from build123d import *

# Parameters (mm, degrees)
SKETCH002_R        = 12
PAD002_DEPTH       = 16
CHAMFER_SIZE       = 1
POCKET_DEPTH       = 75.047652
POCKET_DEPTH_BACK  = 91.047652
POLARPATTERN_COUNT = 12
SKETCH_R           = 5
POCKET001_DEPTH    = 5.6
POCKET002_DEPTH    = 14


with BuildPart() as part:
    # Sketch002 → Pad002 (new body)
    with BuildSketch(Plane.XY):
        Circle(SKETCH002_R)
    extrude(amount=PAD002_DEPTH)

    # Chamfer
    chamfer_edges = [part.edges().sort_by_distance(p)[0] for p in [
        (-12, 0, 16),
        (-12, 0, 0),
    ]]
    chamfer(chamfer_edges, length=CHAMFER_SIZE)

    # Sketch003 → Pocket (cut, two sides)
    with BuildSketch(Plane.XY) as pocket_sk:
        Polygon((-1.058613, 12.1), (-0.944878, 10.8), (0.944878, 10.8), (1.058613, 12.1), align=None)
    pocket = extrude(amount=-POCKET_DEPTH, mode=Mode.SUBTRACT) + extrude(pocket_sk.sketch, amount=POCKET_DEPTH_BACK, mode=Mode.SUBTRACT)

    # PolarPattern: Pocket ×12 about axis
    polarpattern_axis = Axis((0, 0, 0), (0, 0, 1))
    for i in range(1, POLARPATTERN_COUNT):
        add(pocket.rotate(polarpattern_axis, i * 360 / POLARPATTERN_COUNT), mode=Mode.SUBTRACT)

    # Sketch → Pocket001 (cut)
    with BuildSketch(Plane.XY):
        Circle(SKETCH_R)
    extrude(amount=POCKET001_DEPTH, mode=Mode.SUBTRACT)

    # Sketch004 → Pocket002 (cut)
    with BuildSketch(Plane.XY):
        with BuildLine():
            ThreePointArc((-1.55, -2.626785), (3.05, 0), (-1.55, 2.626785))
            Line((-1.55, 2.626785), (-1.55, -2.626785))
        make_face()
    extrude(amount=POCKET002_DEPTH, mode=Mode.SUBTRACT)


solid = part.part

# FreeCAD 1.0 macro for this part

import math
import FreeCAD as App
import Part
import Sketcher
Q = App.Units.Quantity


def edges_at(feature, points):
    """Names of the edges that pass closest to the given points."""
    edges = feature.Shape.Edges
    near = lambda p: min(range(len(edges)), key=lambda i: edges[i].distToShape(Part.Vertex(*p))[0])
    return sorted({f"Edge{near(p) + 1}" for p in points})


def add_polygon(sketch, points):
    """Adds a closed chain of lines whose ends are joined by coincident constraints."""
    first, n = sketch.GeometryCount, len(points)
    for a, b in zip(points, points[1:] + points[:1]):
        sketch.addGeometry(Part.LineSegment(App.Vector(*a, 0), App.Vector(*b, 0)), False)
    for i in range(n):
        sketch.addConstraint(Sketcher.Constraint("Coincident", first + i, 2, first + (i + 1) % n, 1))

doc = App.newDocument("Part")
body = doc.addObject("PartDesign::Body", "Body")

sketch1 = doc.addObject("Sketcher::SketchObject", "Sketch")
body.addObject(sketch1)
sketch1.AttachmentSupport = (doc.XY_Plane, [""])
sketch1.MapMode = "FlatFace"
sketch1.addGeometry(Part.Circle(App.Vector(0, 0, 0), App.Vector(0, 0, 1), 12), False)
sketch1.addConstraint(Sketcher.Constraint("Coincident", 0, 3, -1, 1))
sketch1.addConstraint(Sketcher.Constraint("Diameter", 0, Q("24 mm")))
pad1 = doc.addObject("PartDesign::Pad", "Pad")
body.addObject(pad1)
pad1.Profile = sketch1
pad1.Length = 16
doc.recompute()

chamfer = doc.addObject("PartDesign::Chamfer", "Chamfer")
body.addObject(chamfer)
chamfer.Base = (pad1, edges_at(pad1, [(-12, 0, 16), (-12, 0, 0)]))
chamfer.Size = 1

sketch2 = doc.addObject("Sketcher::SketchObject", "Sketch001")
body.addObject(sketch2)
sketch2.AttachmentSupport = (doc.XY_Plane, [""])
sketch2.MapMode = "FlatFace"
add_polygon(sketch2, [(-1.058613, 12.1), (-0.944878, 10.8), (0.944878, 10.8), (1.058613, 12.1)])
sketch2.addConstraint(Sketcher.Constraint("Horizontal", 1))
sketch2.addConstraint(Sketcher.Constraint("Horizontal", 3))
sketch2.addConstraint(Sketcher.Constraint("Equal", 0, 2))
sketch2.addConstraint(Sketcher.Constraint("Angle", 0, Q("-85.000011 deg")))
sketch2.addConstraint(Sketcher.Constraint("DistanceY", -1, 1, 0, 2, Q("10.8 mm")))
sketch2.addConstraint(Sketcher.Constraint("DistanceY", -1, 1, 2, 2, Q("12.1 mm")))
sketch2.addConstraint(Sketcher.Constraint("DistanceX", 1, 1, 1, 2, Q("1.889756 mm")))
sketch2.addConstraint(Sketcher.Constraint("DistanceX", 0, 2, -1, 1, Q("0.944878 mm")))
pocket1 = doc.addObject("PartDesign::Pocket", "Pocket")
body.addObject(pocket1)
pocket1.Profile = sketch2
pocket1.Type = "ThroughAll"
pocket1.Midplane = True
doc.recompute()

polarpattern = doc.addObject("PartDesign::PolarPattern", "PolarPattern")
body.addObject(polarpattern)
polarpattern.Originals = [pocket1]
polarpattern.Axis = (doc.Z_Axis, [""])
polarpattern.Angle = 360
polarpattern.Occurrences = 12
body.Tip = polarpattern

sketch3 = doc.addObject("Sketcher::SketchObject", "Sketch002")
body.addObject(sketch3)
sketch3.AttachmentSupport = (doc.XY_Plane, [""])
sketch3.MapMode = "FlatFace"
sketch3.addGeometry(Part.Circle(App.Vector(0, 0, 0), App.Vector(0, 0, 1), 5), False)
sketch3.addConstraint(Sketcher.Constraint("Coincident", 0, 3, -1, 1))
sketch3.addConstraint(Sketcher.Constraint("Diameter", 0, Q("10 mm")))
pocket2 = doc.addObject("PartDesign::Pocket", "Pocket001")
body.addObject(pocket2)
pocket2.Profile = sketch3
pocket2.Length = 5.6
pocket2.Reversed = True

sketch4 = doc.addObject("Sketcher::SketchObject", "Sketch003")
body.addObject(sketch4)
sketch4.AttachmentSupport = (doc.XY_Plane, [""])
sketch4.MapMode = "FlatFace"
sketch4.addGeometry(Part.ArcOfCircle(Part.Circle(App.Vector(0, 0, 0), App.Vector(0, 0, 1), 3.05), math.radians(-120.543791), math.radians(120.543791)), False)
sketch4.addGeometry(Part.LineSegment(App.Vector(-1.55, 2.626785, 0), App.Vector(-1.55, -2.626785, 0)), False)
sketch4.addConstraint(Sketcher.Constraint("Coincident", 0, 1, 1, 2))
sketch4.addConstraint(Sketcher.Constraint("Coincident", 1, 1, 0, 2))
sketch4.addConstraint(Sketcher.Constraint("Vertical", 1))
sketch4.addConstraint(Sketcher.Constraint("Coincident", 0, 3, -1, 1))
sketch4.addConstraint(Sketcher.Constraint("Radius", 0, Q("3.05 mm")))
sketch4.addConstraint(Sketcher.Constraint("DistanceX", 0, 1, -1, 1, Q("1.55 mm")))
pocket3 = doc.addObject("PartDesign::Pocket", "Pocket002")
body.addObject(pocket3)
pocket3.Profile = sketch4
pocket3.Length = 14
pocket3.Reversed = True

doc.recompute()
